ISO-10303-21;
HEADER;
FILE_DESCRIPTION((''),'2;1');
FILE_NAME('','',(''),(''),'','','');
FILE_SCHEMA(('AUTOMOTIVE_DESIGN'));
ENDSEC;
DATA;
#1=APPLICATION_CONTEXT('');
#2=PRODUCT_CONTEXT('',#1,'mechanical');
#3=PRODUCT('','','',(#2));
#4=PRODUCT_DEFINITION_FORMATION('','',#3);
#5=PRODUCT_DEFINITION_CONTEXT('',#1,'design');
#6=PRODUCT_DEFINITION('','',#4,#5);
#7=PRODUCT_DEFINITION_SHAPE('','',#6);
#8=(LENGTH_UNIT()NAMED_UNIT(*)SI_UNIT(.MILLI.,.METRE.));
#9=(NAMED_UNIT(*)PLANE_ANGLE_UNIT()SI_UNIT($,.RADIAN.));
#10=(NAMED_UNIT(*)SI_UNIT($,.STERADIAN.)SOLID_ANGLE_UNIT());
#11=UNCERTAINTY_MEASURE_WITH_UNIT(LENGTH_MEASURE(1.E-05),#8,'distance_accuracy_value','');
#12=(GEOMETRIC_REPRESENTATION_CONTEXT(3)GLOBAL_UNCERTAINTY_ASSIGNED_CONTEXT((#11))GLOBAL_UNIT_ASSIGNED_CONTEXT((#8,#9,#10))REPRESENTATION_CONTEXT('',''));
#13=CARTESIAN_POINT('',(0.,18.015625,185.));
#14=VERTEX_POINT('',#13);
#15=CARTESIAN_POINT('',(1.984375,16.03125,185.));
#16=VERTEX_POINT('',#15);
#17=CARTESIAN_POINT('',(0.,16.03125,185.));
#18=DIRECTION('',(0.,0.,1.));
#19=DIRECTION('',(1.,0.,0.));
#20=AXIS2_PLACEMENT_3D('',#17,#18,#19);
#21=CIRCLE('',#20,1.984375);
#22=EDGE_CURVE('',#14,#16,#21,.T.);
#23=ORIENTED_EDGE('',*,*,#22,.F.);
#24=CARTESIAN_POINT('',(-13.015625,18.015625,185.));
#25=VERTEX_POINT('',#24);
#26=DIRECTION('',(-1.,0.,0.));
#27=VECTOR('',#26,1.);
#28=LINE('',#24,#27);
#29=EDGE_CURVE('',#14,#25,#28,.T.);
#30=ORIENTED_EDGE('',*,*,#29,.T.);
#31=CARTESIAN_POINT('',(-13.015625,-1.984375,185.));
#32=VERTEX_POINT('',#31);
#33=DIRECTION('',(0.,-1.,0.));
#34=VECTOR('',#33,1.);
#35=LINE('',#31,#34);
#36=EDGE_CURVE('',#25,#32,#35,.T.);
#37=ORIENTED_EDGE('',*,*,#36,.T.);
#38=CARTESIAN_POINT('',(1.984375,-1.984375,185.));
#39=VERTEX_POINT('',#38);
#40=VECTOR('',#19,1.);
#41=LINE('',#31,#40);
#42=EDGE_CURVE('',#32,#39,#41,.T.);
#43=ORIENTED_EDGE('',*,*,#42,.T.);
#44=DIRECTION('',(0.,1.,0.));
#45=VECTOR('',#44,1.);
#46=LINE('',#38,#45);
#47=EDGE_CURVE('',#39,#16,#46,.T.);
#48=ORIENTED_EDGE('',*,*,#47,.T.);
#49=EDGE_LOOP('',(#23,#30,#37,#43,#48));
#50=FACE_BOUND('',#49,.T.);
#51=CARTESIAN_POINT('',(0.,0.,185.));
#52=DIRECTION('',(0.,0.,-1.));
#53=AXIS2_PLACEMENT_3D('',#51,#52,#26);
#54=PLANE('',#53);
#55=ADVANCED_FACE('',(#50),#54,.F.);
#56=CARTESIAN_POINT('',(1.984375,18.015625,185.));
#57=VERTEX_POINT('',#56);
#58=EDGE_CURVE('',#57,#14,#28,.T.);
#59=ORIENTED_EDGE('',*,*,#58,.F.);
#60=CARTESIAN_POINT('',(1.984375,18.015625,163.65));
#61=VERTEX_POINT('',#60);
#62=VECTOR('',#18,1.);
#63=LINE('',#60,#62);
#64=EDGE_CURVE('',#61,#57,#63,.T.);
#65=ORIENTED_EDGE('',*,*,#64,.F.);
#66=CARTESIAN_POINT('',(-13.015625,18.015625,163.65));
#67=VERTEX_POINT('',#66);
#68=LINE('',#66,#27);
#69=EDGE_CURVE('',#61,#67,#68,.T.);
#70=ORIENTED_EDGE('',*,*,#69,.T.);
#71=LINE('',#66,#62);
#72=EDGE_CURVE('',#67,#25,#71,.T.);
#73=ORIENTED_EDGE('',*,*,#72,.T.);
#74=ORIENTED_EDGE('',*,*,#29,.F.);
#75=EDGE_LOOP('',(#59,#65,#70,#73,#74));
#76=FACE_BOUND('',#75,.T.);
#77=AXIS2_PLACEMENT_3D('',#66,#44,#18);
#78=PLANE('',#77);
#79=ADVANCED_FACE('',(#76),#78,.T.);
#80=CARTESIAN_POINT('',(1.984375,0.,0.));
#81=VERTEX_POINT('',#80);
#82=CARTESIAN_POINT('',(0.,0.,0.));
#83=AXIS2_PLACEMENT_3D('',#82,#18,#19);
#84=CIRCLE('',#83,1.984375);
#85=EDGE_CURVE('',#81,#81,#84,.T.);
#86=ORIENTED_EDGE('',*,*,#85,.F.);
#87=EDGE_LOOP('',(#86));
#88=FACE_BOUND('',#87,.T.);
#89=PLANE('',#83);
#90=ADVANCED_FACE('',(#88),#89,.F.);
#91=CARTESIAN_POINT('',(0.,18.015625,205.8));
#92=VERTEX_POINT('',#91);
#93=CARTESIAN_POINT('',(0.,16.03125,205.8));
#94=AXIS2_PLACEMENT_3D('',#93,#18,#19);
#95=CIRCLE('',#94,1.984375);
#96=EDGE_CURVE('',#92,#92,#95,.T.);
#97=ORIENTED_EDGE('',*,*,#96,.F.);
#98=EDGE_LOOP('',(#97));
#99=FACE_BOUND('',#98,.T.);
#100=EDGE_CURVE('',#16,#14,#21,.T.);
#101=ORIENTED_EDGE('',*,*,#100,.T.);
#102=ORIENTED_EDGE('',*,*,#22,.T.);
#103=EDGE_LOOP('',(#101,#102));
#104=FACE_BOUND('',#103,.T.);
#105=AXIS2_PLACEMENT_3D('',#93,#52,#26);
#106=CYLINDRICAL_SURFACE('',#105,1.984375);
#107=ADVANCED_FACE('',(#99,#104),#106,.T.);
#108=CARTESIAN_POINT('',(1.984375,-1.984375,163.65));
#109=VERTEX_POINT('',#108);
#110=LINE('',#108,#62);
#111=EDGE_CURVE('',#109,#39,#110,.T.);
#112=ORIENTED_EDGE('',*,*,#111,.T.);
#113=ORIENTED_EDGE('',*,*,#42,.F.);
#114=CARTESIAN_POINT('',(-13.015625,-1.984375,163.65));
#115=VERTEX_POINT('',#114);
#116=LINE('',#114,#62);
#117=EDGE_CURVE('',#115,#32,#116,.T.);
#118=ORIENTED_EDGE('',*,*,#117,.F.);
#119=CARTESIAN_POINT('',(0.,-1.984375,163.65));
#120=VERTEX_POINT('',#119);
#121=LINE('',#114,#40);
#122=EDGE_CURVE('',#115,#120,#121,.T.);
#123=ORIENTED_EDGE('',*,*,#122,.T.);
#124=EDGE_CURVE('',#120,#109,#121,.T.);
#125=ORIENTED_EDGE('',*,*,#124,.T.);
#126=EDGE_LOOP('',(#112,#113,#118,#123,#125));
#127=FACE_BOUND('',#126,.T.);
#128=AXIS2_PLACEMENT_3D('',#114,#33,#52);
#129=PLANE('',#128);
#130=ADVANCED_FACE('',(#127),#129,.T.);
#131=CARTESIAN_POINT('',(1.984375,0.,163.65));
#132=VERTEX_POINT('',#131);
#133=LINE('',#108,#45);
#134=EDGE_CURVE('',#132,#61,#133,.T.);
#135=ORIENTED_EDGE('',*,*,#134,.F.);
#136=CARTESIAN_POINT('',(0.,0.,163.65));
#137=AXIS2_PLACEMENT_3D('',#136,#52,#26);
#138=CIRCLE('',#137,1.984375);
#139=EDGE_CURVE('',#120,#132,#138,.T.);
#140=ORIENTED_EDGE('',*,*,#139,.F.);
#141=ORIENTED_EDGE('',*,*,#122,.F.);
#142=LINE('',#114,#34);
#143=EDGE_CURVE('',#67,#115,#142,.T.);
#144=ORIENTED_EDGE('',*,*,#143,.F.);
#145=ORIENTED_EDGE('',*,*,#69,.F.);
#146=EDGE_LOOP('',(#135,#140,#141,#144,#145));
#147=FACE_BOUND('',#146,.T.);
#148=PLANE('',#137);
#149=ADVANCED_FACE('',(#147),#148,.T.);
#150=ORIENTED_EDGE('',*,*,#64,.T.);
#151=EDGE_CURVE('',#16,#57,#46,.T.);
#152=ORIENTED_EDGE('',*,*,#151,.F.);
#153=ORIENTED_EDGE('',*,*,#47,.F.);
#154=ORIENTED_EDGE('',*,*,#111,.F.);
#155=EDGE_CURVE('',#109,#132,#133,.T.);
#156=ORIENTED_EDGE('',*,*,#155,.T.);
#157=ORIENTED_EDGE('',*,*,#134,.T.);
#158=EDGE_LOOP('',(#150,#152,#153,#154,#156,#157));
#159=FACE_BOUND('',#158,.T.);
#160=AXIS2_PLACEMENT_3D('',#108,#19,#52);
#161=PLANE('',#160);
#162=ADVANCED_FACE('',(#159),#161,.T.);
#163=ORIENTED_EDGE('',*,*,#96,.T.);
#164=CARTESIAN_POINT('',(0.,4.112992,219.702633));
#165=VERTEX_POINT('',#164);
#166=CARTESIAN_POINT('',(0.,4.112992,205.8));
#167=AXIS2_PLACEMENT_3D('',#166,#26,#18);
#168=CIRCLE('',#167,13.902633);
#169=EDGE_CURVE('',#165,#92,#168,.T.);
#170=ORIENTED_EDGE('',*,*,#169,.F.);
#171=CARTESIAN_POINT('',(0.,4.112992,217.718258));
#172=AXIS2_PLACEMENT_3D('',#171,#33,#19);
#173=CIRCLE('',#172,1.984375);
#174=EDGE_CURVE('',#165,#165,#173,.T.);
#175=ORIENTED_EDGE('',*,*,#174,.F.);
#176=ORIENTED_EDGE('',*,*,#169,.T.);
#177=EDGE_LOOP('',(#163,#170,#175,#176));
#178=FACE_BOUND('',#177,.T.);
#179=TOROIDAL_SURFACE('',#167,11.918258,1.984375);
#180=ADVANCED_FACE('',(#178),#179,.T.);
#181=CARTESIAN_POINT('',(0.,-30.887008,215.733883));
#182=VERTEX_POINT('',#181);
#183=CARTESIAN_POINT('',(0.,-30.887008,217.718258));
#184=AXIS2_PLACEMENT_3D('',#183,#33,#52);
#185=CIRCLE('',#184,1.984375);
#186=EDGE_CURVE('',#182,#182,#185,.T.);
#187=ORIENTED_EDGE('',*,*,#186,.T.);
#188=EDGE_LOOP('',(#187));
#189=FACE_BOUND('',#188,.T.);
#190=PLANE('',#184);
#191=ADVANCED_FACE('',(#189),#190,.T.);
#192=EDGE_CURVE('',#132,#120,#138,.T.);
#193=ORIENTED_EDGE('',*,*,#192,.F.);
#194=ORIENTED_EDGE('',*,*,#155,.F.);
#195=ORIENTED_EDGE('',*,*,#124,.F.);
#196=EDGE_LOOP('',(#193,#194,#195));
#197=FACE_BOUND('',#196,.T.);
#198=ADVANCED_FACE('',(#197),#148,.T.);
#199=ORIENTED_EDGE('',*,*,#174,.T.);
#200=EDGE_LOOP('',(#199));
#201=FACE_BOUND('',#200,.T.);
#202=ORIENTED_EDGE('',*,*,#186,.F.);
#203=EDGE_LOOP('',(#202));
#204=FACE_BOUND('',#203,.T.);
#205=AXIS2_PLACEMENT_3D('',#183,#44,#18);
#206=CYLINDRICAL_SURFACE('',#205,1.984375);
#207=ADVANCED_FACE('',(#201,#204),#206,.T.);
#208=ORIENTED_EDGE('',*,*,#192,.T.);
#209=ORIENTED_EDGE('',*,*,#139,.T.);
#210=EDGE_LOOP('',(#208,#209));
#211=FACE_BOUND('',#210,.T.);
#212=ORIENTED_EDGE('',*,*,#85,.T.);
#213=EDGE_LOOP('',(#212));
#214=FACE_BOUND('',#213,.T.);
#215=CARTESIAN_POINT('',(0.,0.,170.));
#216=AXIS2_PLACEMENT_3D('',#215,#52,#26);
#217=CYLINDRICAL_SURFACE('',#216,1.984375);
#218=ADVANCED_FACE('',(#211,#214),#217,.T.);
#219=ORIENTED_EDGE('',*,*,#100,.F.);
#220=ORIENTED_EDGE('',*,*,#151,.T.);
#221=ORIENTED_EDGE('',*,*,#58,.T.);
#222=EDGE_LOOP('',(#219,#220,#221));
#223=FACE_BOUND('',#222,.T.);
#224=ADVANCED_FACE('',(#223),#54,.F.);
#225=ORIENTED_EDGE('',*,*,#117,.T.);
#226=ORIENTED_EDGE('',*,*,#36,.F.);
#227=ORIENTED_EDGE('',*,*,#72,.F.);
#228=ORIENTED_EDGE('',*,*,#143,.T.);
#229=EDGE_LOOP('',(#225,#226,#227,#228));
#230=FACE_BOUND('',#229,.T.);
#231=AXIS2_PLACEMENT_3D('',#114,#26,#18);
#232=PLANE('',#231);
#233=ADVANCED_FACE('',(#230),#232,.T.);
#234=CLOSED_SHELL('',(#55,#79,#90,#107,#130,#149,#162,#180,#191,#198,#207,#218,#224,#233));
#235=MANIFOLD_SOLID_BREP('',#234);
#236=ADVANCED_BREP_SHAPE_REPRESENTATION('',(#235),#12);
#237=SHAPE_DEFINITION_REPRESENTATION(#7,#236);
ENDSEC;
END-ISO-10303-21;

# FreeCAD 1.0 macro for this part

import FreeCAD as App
import Part
import Sketcher

V = App.Vector

doc = App.newDocument("Part")
params = doc.addObject("Spreadsheet::Sheet", "Params")
for row, (alias, value) in enumerate([
    ("pad1_length", "170 mm"),
    ("sketch2_width", "15 mm"),
    ("sketch2_height", "20 mm"),
    ("pad2_length", "15 mm"),
    ("pad2_length2", "6.35 mm"),
    ("pad3_length", "20.8 mm"),
    ("sketch4_width", "10 mm"),
    ("revolution_angle", "90 deg"),
    ("pad4_length", "35 mm"),
], start=1):
    params.set(f"A{row}", alias)
    params.set(f"B{row}", "=" + value)
    params.setAlias(f"B{row}", alias)

body = doc.addObject("PartDesign::Body", "Body")

# Sketch on XY plane
sketch1 = doc.addObject("Sketcher::SketchObject", "Sketch")
body.addObject(sketch1)
sketch1.AttachmentSupport = (doc.XY_Plane, [""])
sketch1.MapMode = "FlatFace"
sketch1.addGeometry(Part.Circle(V(0, 0, 0), V(0, 0, 1), 1.984375), False)
sketch1.addConstraint([
    Sketcher.Constraint("Coincident", 0, 3, -1, 1),
    Sketcher.Constraint("Diameter", 0, 3.96875),
])
pad1 = doc.addObject("PartDesign::Pad", "Pad")
body.addObject(pad1)
pad1.Profile = sketch1
pad1.setExpression("Length", "Params.pad1_length")

# Sketch on XY plane
sketch2 = doc.addObject("Sketcher::SketchObject", "Sketch001")
body.addObject(sketch2)
sketch2.AttachmentSupport = (doc.XY_Plane, [""])
sketch2.MapMode = "FlatFace"
sketch2.AttachmentOffset = App.Placement(V(0, 0, 170), App.Rotation())
sketch2.addGeometry([
    Part.LineSegment(V(-13.015625, 18.015625, 0), V(-13.015625, -1.984375, 0)),
    Part.LineSegment(V(-13.015625, -1.984375, 0), V(1.984375, -1.984375, 0)),
    Part.LineSegment(V(1.984375, -1.984375, 0), V(1.984375, 18.015625, 0)),
    Part.LineSegment(V(1.984375, 18.015625, 0), V(-13.015625, 18.015625, 0)),
], False)
sketch2.addConstraint([
    Sketcher.Constraint("Coincident", 0, 2, 1, 1),
    Sketcher.Constraint("Coincident", 1, 2, 2, 1),
    Sketcher.Constraint("Coincident", 2, 2, 3, 1),
    Sketcher.Constraint("Coincident", 3, 2, 0, 1),
    Sketcher.Constraint("Vertical", 0),
    Sketcher.Constraint("Horizontal", 1),
    Sketcher.Constraint("Vertical", 2),
    Sketcher.Constraint("Horizontal", 3),
    Sketcher.Constraint("DistanceX", 1, 1, 1, 2, 15.0),
    Sketcher.Constraint("DistanceY", 0, 2, 0, 1, 20.0),
    Sketcher.Constraint("DistanceX", 0, 2, -1, 1, 13.015625),
    Sketcher.Constraint("DistanceY", 0, 2, -1, 1, 1.984375),
])
sketch2.setExpression("Constraints[8]", "Params.sketch2_width")
sketch2.setExpression("Constraints[9]", "Params.sketch2_height")
pad2 = doc.addObject("PartDesign::Pad", "Pad001")
body.addObject(pad2)
pad2.Profile = sketch2
pad2.Type = "TwoLengths"
pad2.setExpression("Length", "Params.pad2_length")
pad2.setExpression("Length2", "Params.pad2_length2")

# Sketch on XY plane
sketch3 = doc.addObject("Sketcher::SketchObject", "Sketch002")
body.addObject(sketch3)
sketch3.AttachmentSupport = (doc.XY_Plane, [""])
sketch3.MapMode = "FlatFace"
sketch3.AttachmentOffset = App.Placement(V(0, 0, 185), App.Rotation())
sketch3.addGeometry(Part.Circle(V(0, 16.03125, 0), V(0, 0, 1), 1.984375), False)
sketch3.addConstraint([
    Sketcher.Constraint("PointOnObject", 0, 3, -2),
    Sketcher.Constraint("Diameter", 0, 3.96875),
    Sketcher.Constraint("DistanceY", -1, 1, 0, 3, 16.03125),
])
pad3 = doc.addObject("PartDesign::Pad", "Pad002")
body.addObject(pad3)
pad3.Profile = sketch3
pad3.setExpression("Length", "Params.pad3_length")

# Sketch on XY plane
sketch4 = doc.addObject("Sketcher::SketchObject", "Sketch003")
body.addObject(sketch4)
sketch4.AttachmentSupport = (doc.XY_Plane, [""])
sketch4.MapMode = "FlatFace"
sketch4.AttachmentOffset = App.Placement(V(0, 0, 205.8), App.Rotation())
sketch4.addGeometry(Part.Circle(V(0, 16.03125, 0), V(0, 0, 1), 1.984375), False)
sketch4.addGeometry(Part.LineSegment(V(0, 4.112992, 0), V(10, 4.112992, 0)), True)  # axis
sketch4.addConstraint([
    Sketcher.Constraint("Horizontal", 1),
    Sketcher.Constraint("PointOnObject", 0, 3, -2),
    Sketcher.Constraint("PointOnObject", 1, 1, -2),
    Sketcher.Constraint("DistanceX", 1, 1, 1, 2, 10.0),
    Sketcher.Constraint("Diameter", 0, 3.96875),
    Sketcher.Constraint("DistanceY", -1, 1, 0, 3, 16.03125),
    Sketcher.Constraint("DistanceY", -1, 1, 1, 1, 4.112992),
])
sketch4.setExpression("Constraints[3]", "Params.sketch4_width")
revolution = doc.addObject("PartDesign::Revolution", "Revolution")
body.addObject(revolution)
revolution.Profile = sketch4
revolution.ReferenceAxis = (sketch4, ["Axis0"])
revolution.setExpression("Angle", "Params.revolution_angle")

# Sketch on XZ plane
sketch5 = doc.addObject("Sketcher::SketchObject", "Sketch004")
body.addObject(sketch5)
sketch5.AttachmentSupport = (doc.XZ_Plane, [""])
sketch5.MapMode = "FlatFace"
sketch5.AttachmentOffset = App.Placement(V(0, 0, -4.112992), App.Rotation())
sketch5.addGeometry(Part.Circle(V(0, 217.718258, 0), V(0, 0, 1), 1.984375), False)
sketch5.addConstraint([
    Sketcher.Constraint("PointOnObject", 0, 3, -2),
    Sketcher.Constraint("Diameter", 0, 3.96875),
    Sketcher.Constraint("DistanceY", -1, 1, 0, 3, 217.718258),
])
pad4 = doc.addObject("PartDesign::Pad", "Pad003")
body.addObject(pad4)
pad4.Profile = sketch5
pad4.setExpression("Length", "Params.pad4_length")

doc.recompute()
